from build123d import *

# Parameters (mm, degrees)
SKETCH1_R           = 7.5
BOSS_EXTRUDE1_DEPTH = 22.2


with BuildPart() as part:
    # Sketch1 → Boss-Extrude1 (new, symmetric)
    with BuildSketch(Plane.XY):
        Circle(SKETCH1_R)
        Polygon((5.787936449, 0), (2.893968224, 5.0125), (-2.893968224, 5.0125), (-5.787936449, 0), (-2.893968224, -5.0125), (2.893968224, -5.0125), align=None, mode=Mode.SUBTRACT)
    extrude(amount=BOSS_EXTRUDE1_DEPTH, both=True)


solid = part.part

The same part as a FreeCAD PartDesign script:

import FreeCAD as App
import Part
import Sketcher
Q = App.Units.Quantity


def add_polygon(sketch, points):
    """Adds a closed chain of lines whose ends are joined by coincident constraints."""
    first, n = sketch.GeometryCount, len(points)
    for a, b in zip(points, points[1:] + points[:1]):
        sketch.addGeometry(Part.LineSegment(App.Vector(*a, 0), App.Vector(*b, 0)), False)
    for i in range(n):
        sketch.addConstraint(Sketcher.Constraint("Coincident", first + i, 2, first + (i + 1) % n, 1))

doc = App.newDocument("Part")
params = doc.addObject("Spreadsheet::Sheet", "Params")
for row, (alias, value) in enumerate([
    ("sketch1_diameter", "15 mm"),
    ("pad1_length", "44.4 mm"),
], start=1):
    params.set(f"A{row}", alias)
    params.set(f"B{row}", "=" + value)
    params.setAlias(f"B{row}", alias)

body = doc.addObject("PartDesign::Body", "Body")

# Sketch on XY plane
sketch1 = doc.addObject("Sketcher::SketchObject", "Sketch")
body.addObject(sketch1)
sketch1.AttachmentSupport = (doc.XY_Plane, [""])
sketch1.MapMode = "FlatFace"
sketch1.addGeometry(Part.Circle(App.Vector(0, 0, 0), App.Vector(0, 0, 1), 8), False)  # 0
add_polygon(sketch1, [(3, 5), (6, 0), (3, -5), (-3, -5), (-6, 0), (-3, 5)])  # lines 1-6
sketch1.addConstraint([
    Sketcher.Constraint("Horizontal", 3),
    Sketcher.Constraint("Horizontal", 6),
    Sketcher.Constraint("Coincident", 0, 3, -1, 1),
    Sketcher.Constraint("Symmetric", 1, 2, 4, 2, -1, 1),
    Sketcher.Constraint("Symmetric", 2, 2, 5, 2, -1, 1),
    Sketcher.Constraint("PointOnObject", 1, 2, -1),
    Sketcher.Constraint("Parallel", 1, 4),
    Sketcher.Constraint("Vertical", 3, 2, 5, 2),
    Sketcher.Constraint("Diameter", 0, 15.0),
    Sketcher.Constraint("Angle", 1, Q("-60 deg")),
    Sketcher.Constraint("DistanceY", 3, 2, 5, 2, 10.025),
    Sketcher.Constraint("DistanceX", 3, 2, 3, 1, 5.787936),
])
sketch1.setExpression("Constraints[14]", "Params.sketch1_diameter")
pad1 = doc.addObject("PartDesign::Pad", "Pad")
body.addObject(pad1)
pad1.Profile = sketch1
pad1.setExpression("Length", "Params.pad1_length")
pad1.Midplane = True

doc.recompute()
